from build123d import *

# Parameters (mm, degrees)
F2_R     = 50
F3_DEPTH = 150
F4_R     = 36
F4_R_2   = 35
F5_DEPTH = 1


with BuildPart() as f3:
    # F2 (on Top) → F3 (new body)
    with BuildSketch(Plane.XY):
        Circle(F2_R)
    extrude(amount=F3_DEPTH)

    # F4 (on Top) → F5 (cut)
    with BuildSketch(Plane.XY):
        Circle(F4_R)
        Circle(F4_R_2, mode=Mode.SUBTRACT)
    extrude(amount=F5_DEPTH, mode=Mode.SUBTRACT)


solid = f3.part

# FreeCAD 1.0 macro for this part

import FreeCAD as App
import Part
import Sketcher

doc = App.newDocument("Part")
params = doc.addObject("Spreadsheet::Sheet", "Params")
for row, (alias, value) in enumerate([
    ("sketch1_diameter", "100 mm"),
    ("pad1_length", "150 mm"),
    ("sketch2_diameter", "72 mm"),
    ("sketch2_diameter2", "70 mm"),
    ("pocket1_length", "1 mm"),
], start=1):
    params.set(f"A{row}", alias)
    params.set(f"B{row}", "=" + value)
    params.setAlias(f"B{row}", alias)

body = doc.addObject("PartDesign::Body", "Body")

# Sketch on XY plane
sketch1 = doc.addObject("Sketcher::SketchObject", "Sketch")
body.addObject(sketch1)
sketch1.AttachmentSupport = (doc.XY_Plane, [""])
sketch1.MapMode = "FlatFace"
sketch1.addGeometry(Part.Circle(App.Vector(0, 0, 0), App.Vector(0, 0, 1), 50), False)
sketch1.addConstraint([
    Sketcher.Constraint("Coincident", 0, 3, -1, 1),
    Sketcher.Constraint("Diameter", 0, 100.0),
])
sketch1.setExpression("Constraints[1]", "Params.sketch1_diameter")
pad1 = doc.addObject("PartDesign::Pad", "Pad")
body.addObject(pad1)
pad1.Profile = sketch1
pad1.setExpression("Length", "Params.pad1_length")

# Sketch on XY plane
sketch2 = doc.addObject("Sketcher::SketchObject", "Sketch001")
body.addObject(sketch2)
sketch2.AttachmentSupport = (doc.XY_Plane, [""])
sketch2.MapMode = "FlatFace"
sketch2.addGeometry([
    Part.Circle(App.Vector(0, 0, 0), App.Vector(0, 0, 1), 36),
    Part.Circle(App.Vector(0, 0, 0), App.Vector(0, 0, 1), 35),
], False)
sketch2.addConstraint([
    Sketcher.Constraint("Coincident", 0, 3, -1, 1),
    Sketcher.Constraint("Coincident", 1, 3, -1, 1),
    Sketcher.Constraint("Diameter", 0, 72.0),
    Sketcher.Constraint("Diameter", 1, 70.0),
])
sketch2.setExpression("Constraints[2]", "Params.sketch2_diameter")
sketch2.setExpression("Constraints[3]", "Params.sketch2_diameter2")
pocket1 = doc.addObject("PartDesign::Pocket", "Pocket")
body.addObject(pocket1)
pocket1.Profile = sketch2
pocket1.setExpression("Length", "Params.pocket1_length")
pocket1.Reversed = True

doc.recompute()
